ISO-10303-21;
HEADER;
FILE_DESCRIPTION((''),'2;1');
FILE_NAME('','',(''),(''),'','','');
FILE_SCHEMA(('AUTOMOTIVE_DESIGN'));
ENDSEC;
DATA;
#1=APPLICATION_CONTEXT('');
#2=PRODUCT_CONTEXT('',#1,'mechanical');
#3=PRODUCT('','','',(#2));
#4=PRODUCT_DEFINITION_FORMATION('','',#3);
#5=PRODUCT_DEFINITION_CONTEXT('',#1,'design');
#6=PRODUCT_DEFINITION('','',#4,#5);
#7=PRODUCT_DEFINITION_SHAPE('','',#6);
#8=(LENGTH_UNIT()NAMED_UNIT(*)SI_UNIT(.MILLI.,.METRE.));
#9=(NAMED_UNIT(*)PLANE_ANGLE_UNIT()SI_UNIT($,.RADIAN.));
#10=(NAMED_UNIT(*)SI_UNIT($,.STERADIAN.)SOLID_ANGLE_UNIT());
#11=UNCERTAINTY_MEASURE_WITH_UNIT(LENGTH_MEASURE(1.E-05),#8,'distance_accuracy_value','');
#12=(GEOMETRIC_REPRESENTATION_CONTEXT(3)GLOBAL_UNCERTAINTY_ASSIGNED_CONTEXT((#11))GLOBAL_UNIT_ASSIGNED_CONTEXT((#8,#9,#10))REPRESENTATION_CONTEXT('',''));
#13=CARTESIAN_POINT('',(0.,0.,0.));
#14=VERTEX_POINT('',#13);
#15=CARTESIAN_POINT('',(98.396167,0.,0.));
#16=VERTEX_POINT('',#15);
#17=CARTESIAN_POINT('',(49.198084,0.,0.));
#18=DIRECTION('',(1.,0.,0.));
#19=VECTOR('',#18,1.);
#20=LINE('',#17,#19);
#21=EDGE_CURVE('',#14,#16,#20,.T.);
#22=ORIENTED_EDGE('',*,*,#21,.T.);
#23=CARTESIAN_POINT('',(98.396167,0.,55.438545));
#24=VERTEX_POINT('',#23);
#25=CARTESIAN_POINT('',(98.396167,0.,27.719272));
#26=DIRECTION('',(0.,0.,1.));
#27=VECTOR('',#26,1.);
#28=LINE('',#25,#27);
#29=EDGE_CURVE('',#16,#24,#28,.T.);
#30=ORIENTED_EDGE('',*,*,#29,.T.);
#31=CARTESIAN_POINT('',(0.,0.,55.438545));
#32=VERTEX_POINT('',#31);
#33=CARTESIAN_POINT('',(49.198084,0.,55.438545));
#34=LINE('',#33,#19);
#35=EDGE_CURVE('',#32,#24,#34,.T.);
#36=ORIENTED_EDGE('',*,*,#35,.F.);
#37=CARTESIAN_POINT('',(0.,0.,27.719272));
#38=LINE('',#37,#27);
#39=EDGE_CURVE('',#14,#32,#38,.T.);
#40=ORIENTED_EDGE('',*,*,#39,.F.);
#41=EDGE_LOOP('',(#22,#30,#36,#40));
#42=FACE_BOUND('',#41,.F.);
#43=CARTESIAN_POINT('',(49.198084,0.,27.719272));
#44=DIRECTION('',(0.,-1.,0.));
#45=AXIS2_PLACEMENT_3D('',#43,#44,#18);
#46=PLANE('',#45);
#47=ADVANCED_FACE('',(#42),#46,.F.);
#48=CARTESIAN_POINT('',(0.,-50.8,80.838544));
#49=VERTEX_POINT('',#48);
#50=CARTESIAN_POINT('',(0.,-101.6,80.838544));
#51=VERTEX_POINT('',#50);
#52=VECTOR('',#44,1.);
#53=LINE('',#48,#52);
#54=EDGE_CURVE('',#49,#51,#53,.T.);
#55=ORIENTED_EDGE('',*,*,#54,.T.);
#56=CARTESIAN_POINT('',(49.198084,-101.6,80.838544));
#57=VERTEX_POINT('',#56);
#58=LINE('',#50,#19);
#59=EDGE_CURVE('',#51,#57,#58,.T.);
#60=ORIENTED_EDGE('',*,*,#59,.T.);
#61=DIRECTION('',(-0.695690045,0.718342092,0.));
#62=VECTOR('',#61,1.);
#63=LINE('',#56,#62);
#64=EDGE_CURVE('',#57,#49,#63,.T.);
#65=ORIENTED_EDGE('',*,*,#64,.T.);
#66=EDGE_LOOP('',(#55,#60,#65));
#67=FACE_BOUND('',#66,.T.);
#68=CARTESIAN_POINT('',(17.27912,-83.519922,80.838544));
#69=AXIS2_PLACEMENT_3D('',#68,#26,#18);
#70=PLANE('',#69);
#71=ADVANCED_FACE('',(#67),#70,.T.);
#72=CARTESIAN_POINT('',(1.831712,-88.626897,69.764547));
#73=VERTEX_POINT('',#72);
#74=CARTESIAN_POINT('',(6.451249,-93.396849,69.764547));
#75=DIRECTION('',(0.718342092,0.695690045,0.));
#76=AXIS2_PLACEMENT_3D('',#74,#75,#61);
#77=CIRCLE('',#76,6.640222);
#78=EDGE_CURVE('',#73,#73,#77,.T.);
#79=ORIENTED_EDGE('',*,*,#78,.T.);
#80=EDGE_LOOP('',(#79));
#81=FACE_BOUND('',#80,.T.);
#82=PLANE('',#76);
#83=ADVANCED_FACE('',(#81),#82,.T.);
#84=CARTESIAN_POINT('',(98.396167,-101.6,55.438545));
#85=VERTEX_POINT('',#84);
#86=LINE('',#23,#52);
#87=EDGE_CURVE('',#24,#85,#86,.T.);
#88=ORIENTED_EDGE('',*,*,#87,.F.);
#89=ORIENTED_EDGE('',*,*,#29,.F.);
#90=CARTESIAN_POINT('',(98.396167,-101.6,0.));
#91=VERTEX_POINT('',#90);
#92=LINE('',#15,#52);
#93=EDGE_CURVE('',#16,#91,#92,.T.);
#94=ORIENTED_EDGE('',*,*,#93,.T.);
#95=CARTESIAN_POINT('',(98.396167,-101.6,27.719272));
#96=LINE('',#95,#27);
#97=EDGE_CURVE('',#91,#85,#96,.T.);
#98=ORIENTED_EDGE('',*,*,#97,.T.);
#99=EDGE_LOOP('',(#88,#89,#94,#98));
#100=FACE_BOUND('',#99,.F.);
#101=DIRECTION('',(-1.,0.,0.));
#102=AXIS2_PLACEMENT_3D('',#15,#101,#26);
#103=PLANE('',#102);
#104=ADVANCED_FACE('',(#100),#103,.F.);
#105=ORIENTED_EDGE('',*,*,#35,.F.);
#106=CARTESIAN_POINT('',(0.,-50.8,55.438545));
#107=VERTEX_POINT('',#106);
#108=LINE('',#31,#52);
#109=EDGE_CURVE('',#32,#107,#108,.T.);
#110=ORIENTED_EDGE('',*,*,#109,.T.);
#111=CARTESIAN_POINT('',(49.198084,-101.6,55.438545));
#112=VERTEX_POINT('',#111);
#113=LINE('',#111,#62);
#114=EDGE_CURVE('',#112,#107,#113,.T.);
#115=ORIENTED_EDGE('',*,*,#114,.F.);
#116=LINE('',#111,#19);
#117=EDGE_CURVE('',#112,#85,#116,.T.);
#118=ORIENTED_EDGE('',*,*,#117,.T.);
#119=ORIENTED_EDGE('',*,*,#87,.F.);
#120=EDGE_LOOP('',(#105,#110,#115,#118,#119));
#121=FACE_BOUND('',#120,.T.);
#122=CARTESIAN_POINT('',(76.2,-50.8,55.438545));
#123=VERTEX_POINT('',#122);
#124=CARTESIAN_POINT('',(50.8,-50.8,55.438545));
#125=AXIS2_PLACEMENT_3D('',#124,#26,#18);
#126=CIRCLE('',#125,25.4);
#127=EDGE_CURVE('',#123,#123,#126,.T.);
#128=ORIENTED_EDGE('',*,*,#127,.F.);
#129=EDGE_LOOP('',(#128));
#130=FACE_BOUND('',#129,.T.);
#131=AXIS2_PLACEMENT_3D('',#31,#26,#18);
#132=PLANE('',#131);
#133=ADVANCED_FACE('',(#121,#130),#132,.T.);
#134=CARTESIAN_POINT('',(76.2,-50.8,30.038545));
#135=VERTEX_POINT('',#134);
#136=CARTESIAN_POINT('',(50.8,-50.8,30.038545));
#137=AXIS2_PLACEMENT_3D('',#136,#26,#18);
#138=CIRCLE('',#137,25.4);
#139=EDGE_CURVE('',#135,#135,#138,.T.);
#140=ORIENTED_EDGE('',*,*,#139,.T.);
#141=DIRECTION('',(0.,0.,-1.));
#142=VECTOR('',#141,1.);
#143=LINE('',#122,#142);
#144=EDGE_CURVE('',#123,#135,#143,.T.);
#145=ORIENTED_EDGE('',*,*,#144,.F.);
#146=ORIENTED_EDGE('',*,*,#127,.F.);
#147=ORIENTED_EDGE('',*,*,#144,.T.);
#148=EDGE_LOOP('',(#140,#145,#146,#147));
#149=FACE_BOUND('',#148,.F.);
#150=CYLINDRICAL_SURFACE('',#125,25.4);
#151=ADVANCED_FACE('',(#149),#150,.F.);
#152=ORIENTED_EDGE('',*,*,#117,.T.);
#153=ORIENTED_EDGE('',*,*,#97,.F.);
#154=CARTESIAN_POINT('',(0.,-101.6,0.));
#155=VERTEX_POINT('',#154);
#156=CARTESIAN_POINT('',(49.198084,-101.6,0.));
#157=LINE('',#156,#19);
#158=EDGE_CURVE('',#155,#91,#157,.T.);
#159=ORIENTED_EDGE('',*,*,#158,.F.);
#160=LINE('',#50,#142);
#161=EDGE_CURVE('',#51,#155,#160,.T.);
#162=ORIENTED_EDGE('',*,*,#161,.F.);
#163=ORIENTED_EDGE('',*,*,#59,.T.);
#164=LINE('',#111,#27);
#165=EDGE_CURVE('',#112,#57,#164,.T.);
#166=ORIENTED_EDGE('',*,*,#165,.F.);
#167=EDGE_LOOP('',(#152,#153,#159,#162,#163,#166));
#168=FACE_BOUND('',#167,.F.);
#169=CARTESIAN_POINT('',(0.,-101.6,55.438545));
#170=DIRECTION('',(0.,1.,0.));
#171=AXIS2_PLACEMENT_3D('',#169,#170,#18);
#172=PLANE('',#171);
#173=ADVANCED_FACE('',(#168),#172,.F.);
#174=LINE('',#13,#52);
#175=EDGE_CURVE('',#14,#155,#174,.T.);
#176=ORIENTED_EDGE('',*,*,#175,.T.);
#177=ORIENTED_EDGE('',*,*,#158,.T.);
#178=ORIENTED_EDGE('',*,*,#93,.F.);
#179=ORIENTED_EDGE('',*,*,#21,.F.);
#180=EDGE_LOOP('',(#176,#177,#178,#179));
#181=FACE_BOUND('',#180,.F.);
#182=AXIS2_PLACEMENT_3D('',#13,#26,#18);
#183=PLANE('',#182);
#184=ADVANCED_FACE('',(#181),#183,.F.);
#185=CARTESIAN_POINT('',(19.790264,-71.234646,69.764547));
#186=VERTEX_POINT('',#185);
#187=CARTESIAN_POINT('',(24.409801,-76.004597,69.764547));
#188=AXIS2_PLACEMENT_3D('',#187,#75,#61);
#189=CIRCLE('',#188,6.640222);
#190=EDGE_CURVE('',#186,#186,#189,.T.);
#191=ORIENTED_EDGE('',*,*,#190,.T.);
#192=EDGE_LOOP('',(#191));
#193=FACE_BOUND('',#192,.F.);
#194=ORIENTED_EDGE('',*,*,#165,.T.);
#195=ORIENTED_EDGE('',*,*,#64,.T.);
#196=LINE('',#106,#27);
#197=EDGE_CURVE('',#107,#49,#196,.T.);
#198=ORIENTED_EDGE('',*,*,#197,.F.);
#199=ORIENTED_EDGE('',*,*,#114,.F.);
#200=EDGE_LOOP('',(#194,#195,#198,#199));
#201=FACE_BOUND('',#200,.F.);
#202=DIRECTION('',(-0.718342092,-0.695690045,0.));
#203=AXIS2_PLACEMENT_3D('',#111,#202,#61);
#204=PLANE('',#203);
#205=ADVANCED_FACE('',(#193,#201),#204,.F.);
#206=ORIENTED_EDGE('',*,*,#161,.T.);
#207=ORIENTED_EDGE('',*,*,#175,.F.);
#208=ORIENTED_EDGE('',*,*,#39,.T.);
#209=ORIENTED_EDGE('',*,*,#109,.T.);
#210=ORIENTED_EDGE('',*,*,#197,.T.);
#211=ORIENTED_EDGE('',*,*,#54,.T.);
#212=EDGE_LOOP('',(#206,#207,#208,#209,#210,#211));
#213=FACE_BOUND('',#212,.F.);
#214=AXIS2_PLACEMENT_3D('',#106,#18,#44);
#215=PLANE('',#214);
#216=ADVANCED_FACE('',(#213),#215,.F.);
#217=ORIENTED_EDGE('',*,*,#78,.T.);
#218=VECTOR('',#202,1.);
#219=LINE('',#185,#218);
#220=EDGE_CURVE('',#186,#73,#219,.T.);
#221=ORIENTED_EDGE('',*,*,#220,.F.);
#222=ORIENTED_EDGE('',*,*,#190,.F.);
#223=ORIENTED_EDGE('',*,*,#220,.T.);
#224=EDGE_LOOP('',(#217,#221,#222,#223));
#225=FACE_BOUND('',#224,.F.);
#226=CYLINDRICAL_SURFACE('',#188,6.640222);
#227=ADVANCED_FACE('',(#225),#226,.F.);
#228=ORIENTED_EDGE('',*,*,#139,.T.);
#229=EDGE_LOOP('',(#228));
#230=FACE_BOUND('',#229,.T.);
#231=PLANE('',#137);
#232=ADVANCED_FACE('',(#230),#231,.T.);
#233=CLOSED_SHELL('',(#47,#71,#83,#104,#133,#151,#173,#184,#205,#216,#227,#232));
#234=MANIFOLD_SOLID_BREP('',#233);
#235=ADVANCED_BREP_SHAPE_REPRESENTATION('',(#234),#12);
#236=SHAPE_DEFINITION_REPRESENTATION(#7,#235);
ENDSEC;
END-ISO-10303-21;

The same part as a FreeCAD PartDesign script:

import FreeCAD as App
import Part
import Sketcher
from FreeCAD import Vector
Q = App.Units.Quantity


def add_polygon(sketch, points):
    """Adds a closed chain of lines whose ends are joined by coincident constraints."""
    first, n = sketch.GeometryCount, len(points)
    for a, b in zip(points, points[1:] + points[:1]):
        sketch.addGeometry(Part.LineSegment(App.Vector(*a, 0), App.Vector(*b, 0)), False)
    for i in range(n):
        sketch.addConstraint(Sketcher.Constraint("Coincident", first + i, 2, first + (i + 1) % n, 1))

doc = App.newDocument("Part")
params = doc.addObject("Spreadsheet::Sheet", "Params")
for row, (alias, value) in enumerate([
    ("pad1_length", "4 in"),
    ("sketch2_diameter", "2 in"),
    ("pocket1_length", "1 in"),
    ("sketch3_height", "2 in"),
    ("pad2_length", "1 in"),
    ("pocket2_length", "25 mm"),
], start=1):
    params.set(f"A{row}", alias)
    params.set(f"B{row}", "=" + value)
    params.setAlias(f"B{row}", alias)

body = doc.addObject("PartDesign::Body", "Body")

sketch1 = body.newObject("Sketcher::SketchObject", "Sketch")
sketch1.AttachmentSupport = (doc.getObject("XZ_Plane"), [""])
sketch1.MapMode = "FlatFace"
add_polygon(sketch1, [(0, 55), (0, 0), (98, 0), (98, 55)])
sketch1.addConstraint(Sketcher.Constraint("Vertical", 0))
sketch1.addConstraint(Sketcher.Constraint("Horizontal", 1))
sketch1.addConstraint(Sketcher.Constraint("Vertical", 2))
sketch1.addConstraint(Sketcher.Constraint("Horizontal", 3))
sketch1.addConstraint(Sketcher.Constraint("Coincident", 0, 2, -1, 1))
sketch1.addConstraint(Sketcher.Constraint("DistanceX", 1, 1, 1, 2, 98.396167))
sketch1.addConstraint(Sketcher.Constraint("DistanceY", 0, 2, 0, 1, 55.438545))
pad1 = body.newObject("PartDesign::Pad", "Pad")
pad1.Profile = sketch1
pad1.setExpression("Length", "Params.pad1_length")

sketch2 = body.newObject("Sketcher::SketchObject", "Sketch001")
sketch2.AttachmentSupport = (doc.getObject("XY_Plane"), [""])
sketch2.MapMode = "FlatFace"
sketch2.AttachmentOffset = App.Placement(Vector(0, 0, 55.438545), App.Rotation())
sketch2.addGeometry(Part.Circle(Vector(51, -51, 0), Vector(0, 0, 1), 25), False)
sketch2.addConstraint(Sketcher.Constraint("Diameter", 0, Q("2 in")))
sketch2.addConstraint(Sketcher.Constraint("DistanceX", -1, 1, 0, 3, Q("2 in")))
sketch2.addConstraint(Sketcher.Constraint("DistanceY", 0, 3, -1, 1, Q("2 in")))
sketch2.setExpression("Constraints[0]", "Params.sketch2_diameter")
pocket1 = body.newObject("PartDesign::Pocket", "Pocket")
pocket1.Profile = sketch2
pocket1.setExpression("Length", "Params.pocket1_length")

sketch3 = body.newObject("Sketcher::SketchObject", "Sketch002")
sketch3.AttachmentSupport = (doc.getObject("XY_Plane"), [""])
sketch3.MapMode = "FlatFace"
sketch3.AttachmentOffset = App.Placement(Vector(0, 0, 55.438545), App.Rotation())
add_polygon(sketch3, [(49, -102), (0, -51), (0, -102)])
sketch3.addConstraint(Sketcher.Constraint("Vertical", 1))
sketch3.addConstraint(Sketcher.Constraint("Horizontal", 2))
sketch3.addConstraint(Sketcher.Constraint("PointOnObject", 0, 2, -2))
sketch3.addConstraint(Sketcher.Constraint("DistanceY", 1, 2, 1, 1, Q("2 in")))
sketch3.addConstraint(Sketcher.Constraint("DistanceY", 0, 2, -1, 1, Q("2 in")))
sketch3.addConstraint(Sketcher.Constraint("DistanceX", 2, 1, 2, 2, 49.198084))
sketch3.setExpression("Constraints[6]", "Params.sketch3_height")
pad2 = body.newObject("PartDesign::Pad", "Pad001")
pad2.Profile = sketch3
pad2.setExpression("Length", "Params.pad2_length")

sketch4 = body.newObject("Sketcher::SketchObject", "Sketch003")
sketch4.Placement = App.Placement(Vector(-25.386967, -24.58642, 0), App.Rotation(Vector(-0.695690045, 0.718342092, 0), Vector(0, 0, 1), Vector(0.718342092, 0.695690045, 0), "ZXY"))
sketch4.addGeometry(Part.Circle(Vector(-72, 70, 0), Vector(0, 0, 1), 7), False)
sketch4.addConstraint(Sketcher.Constraint("Diameter", 0, 13.280445))
sketch4.addConstraint(Sketcher.Constraint("DistanceX", 0, 3, -1, 1, 71.578957))
sketch4.addConstraint(Sketcher.Constraint("DistanceY", -1, 1, 0, 3, 69.764547))
pocket2 = body.newObject("PartDesign::Pocket", "Pocket001")
pocket2.Profile = sketch4
pocket2.setExpression("Length", "Params.pocket2_length")

doc.recompute()
